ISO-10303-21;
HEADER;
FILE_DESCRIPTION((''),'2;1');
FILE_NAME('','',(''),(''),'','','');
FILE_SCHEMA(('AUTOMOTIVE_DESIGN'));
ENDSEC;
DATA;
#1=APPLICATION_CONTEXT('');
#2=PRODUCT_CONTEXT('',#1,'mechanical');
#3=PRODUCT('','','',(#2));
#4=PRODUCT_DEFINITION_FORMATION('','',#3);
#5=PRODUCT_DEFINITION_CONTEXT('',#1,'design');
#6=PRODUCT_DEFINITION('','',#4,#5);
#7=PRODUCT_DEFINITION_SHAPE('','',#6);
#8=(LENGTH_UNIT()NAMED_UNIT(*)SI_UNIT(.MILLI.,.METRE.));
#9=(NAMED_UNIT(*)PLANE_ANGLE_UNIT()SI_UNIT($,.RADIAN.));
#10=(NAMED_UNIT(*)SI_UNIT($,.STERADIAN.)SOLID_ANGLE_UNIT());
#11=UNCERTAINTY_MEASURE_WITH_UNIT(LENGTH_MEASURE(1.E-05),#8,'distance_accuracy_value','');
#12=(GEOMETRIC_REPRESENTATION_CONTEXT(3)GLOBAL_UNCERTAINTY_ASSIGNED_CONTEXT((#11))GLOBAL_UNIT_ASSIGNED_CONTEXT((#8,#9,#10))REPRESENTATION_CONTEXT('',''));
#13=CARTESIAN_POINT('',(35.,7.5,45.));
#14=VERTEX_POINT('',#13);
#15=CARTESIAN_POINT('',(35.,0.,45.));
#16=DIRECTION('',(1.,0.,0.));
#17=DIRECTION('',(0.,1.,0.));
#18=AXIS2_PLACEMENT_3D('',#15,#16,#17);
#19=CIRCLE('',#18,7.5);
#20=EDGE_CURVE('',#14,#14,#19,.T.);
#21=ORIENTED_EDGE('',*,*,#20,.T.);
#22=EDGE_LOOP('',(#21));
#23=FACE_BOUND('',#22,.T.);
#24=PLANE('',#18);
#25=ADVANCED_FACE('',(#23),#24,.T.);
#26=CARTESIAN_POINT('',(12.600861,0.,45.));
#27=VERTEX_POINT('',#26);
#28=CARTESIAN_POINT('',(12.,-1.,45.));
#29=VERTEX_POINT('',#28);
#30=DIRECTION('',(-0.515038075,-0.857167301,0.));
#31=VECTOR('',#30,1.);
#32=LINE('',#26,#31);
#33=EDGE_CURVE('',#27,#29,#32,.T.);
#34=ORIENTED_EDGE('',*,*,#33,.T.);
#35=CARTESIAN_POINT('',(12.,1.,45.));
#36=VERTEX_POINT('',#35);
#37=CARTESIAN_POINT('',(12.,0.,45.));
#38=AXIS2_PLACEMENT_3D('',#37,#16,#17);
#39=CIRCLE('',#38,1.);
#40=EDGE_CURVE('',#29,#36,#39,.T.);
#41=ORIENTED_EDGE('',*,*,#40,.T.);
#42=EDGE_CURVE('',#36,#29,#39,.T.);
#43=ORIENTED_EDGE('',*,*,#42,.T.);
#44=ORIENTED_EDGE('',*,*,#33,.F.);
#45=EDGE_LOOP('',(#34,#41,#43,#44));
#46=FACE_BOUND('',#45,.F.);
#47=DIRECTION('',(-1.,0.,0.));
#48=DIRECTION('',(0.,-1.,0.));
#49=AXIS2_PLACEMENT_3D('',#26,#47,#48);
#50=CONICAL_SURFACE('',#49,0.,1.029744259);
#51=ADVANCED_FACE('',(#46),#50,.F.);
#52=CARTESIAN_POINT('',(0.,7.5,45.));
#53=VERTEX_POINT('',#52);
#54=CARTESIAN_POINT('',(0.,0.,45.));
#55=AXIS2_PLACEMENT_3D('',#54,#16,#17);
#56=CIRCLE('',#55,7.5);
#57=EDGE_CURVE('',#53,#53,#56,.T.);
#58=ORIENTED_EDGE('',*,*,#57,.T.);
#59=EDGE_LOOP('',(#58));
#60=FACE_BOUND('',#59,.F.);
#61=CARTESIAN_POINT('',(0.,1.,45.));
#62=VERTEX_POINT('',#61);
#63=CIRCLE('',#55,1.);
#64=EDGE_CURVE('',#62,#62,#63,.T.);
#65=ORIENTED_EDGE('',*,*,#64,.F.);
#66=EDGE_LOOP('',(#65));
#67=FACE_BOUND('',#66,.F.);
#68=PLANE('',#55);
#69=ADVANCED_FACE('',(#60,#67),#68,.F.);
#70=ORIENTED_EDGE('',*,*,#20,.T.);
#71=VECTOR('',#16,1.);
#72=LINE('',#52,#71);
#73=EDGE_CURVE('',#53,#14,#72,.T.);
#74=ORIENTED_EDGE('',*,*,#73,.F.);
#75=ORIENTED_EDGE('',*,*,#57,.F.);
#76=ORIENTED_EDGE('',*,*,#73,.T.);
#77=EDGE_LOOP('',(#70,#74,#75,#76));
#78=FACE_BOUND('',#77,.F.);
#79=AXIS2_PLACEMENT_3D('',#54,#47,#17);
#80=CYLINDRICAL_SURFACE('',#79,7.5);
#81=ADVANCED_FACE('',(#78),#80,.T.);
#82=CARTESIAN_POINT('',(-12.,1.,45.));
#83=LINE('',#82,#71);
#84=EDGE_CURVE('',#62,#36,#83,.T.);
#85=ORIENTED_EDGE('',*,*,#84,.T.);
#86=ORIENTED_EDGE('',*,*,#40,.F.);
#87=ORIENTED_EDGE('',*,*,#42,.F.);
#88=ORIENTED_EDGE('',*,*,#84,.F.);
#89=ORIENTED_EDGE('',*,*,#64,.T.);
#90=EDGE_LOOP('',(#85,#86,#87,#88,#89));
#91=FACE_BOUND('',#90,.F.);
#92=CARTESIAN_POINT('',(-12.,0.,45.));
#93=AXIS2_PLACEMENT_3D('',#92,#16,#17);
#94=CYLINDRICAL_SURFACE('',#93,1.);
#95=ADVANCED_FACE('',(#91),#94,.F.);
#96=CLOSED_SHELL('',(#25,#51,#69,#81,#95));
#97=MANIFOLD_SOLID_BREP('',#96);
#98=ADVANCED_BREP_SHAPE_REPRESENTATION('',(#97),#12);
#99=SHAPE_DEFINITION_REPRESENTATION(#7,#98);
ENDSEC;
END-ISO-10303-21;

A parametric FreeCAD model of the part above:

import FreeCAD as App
import Part
import Sketcher
from FreeCAD import Vector
Q = App.Units.Quantity

doc = App.newDocument("Part")
body = doc.addObject("PartDesign::Body", "Body")

# Sketch on YZ plane
sketch1 = body.newObject("Sketcher::SketchObject", "Sketch")
sketch1.AttachmentSupport = (doc.getObject("YZ_Plane"), [""])
sketch1.MapMode = "FlatFace"
sketch1.addGeometry(Part.Circle(Vector(0, 45, 0), Vector(0, 0, 1), 7.5), False)
sketch1.addConstraint([
    Sketcher.Constraint("PointOnObject", 0, 3, -2),
    Sketcher.Constraint("Diameter", 0, Q("15 mm")),
    Sketcher.Constraint("DistanceY", -1, 1, 0, 3, Q("45 mm")),
])
pad1 = body.newObject("PartDesign::Pad", "Pad")
pad1.Profile = sketch1
pad1.Length = 35

# Sketch on YZ plane
sketch2 = body.newObject("Sketcher::SketchObject", "Sketch001")
sketch2.AttachmentSupport = (doc.getObject("YZ_Plane"), [""])
sketch2.MapMode = "FlatFace"
sketch2.addGeometry(Part.Circle(Vector(0, 45, 0), Vector(0, 0, 1), 1), False)
sketch2.addConstraint([
    Sketcher.Constraint("PointOnObject", 0, 3, -2),
    Sketcher.Constraint("Diameter", 0, Q("2 mm")),
    Sketcher.Constraint("DistanceY", -1, 1, 0, 3, Q("45 mm")),
])
doc.recompute()
hole = body.newObject("PartDesign::Hole", "Hole")
hole.Profile = sketch2
hole.ThreadType = "None"
hole.Diameter = 2
hole.DepthType = "Dimension"
hole.Depth = 12
hole.DrillPoint = "Angled"
hole.DrillPointAngle = 118
hole.Reversed = True

doc.recompute()
